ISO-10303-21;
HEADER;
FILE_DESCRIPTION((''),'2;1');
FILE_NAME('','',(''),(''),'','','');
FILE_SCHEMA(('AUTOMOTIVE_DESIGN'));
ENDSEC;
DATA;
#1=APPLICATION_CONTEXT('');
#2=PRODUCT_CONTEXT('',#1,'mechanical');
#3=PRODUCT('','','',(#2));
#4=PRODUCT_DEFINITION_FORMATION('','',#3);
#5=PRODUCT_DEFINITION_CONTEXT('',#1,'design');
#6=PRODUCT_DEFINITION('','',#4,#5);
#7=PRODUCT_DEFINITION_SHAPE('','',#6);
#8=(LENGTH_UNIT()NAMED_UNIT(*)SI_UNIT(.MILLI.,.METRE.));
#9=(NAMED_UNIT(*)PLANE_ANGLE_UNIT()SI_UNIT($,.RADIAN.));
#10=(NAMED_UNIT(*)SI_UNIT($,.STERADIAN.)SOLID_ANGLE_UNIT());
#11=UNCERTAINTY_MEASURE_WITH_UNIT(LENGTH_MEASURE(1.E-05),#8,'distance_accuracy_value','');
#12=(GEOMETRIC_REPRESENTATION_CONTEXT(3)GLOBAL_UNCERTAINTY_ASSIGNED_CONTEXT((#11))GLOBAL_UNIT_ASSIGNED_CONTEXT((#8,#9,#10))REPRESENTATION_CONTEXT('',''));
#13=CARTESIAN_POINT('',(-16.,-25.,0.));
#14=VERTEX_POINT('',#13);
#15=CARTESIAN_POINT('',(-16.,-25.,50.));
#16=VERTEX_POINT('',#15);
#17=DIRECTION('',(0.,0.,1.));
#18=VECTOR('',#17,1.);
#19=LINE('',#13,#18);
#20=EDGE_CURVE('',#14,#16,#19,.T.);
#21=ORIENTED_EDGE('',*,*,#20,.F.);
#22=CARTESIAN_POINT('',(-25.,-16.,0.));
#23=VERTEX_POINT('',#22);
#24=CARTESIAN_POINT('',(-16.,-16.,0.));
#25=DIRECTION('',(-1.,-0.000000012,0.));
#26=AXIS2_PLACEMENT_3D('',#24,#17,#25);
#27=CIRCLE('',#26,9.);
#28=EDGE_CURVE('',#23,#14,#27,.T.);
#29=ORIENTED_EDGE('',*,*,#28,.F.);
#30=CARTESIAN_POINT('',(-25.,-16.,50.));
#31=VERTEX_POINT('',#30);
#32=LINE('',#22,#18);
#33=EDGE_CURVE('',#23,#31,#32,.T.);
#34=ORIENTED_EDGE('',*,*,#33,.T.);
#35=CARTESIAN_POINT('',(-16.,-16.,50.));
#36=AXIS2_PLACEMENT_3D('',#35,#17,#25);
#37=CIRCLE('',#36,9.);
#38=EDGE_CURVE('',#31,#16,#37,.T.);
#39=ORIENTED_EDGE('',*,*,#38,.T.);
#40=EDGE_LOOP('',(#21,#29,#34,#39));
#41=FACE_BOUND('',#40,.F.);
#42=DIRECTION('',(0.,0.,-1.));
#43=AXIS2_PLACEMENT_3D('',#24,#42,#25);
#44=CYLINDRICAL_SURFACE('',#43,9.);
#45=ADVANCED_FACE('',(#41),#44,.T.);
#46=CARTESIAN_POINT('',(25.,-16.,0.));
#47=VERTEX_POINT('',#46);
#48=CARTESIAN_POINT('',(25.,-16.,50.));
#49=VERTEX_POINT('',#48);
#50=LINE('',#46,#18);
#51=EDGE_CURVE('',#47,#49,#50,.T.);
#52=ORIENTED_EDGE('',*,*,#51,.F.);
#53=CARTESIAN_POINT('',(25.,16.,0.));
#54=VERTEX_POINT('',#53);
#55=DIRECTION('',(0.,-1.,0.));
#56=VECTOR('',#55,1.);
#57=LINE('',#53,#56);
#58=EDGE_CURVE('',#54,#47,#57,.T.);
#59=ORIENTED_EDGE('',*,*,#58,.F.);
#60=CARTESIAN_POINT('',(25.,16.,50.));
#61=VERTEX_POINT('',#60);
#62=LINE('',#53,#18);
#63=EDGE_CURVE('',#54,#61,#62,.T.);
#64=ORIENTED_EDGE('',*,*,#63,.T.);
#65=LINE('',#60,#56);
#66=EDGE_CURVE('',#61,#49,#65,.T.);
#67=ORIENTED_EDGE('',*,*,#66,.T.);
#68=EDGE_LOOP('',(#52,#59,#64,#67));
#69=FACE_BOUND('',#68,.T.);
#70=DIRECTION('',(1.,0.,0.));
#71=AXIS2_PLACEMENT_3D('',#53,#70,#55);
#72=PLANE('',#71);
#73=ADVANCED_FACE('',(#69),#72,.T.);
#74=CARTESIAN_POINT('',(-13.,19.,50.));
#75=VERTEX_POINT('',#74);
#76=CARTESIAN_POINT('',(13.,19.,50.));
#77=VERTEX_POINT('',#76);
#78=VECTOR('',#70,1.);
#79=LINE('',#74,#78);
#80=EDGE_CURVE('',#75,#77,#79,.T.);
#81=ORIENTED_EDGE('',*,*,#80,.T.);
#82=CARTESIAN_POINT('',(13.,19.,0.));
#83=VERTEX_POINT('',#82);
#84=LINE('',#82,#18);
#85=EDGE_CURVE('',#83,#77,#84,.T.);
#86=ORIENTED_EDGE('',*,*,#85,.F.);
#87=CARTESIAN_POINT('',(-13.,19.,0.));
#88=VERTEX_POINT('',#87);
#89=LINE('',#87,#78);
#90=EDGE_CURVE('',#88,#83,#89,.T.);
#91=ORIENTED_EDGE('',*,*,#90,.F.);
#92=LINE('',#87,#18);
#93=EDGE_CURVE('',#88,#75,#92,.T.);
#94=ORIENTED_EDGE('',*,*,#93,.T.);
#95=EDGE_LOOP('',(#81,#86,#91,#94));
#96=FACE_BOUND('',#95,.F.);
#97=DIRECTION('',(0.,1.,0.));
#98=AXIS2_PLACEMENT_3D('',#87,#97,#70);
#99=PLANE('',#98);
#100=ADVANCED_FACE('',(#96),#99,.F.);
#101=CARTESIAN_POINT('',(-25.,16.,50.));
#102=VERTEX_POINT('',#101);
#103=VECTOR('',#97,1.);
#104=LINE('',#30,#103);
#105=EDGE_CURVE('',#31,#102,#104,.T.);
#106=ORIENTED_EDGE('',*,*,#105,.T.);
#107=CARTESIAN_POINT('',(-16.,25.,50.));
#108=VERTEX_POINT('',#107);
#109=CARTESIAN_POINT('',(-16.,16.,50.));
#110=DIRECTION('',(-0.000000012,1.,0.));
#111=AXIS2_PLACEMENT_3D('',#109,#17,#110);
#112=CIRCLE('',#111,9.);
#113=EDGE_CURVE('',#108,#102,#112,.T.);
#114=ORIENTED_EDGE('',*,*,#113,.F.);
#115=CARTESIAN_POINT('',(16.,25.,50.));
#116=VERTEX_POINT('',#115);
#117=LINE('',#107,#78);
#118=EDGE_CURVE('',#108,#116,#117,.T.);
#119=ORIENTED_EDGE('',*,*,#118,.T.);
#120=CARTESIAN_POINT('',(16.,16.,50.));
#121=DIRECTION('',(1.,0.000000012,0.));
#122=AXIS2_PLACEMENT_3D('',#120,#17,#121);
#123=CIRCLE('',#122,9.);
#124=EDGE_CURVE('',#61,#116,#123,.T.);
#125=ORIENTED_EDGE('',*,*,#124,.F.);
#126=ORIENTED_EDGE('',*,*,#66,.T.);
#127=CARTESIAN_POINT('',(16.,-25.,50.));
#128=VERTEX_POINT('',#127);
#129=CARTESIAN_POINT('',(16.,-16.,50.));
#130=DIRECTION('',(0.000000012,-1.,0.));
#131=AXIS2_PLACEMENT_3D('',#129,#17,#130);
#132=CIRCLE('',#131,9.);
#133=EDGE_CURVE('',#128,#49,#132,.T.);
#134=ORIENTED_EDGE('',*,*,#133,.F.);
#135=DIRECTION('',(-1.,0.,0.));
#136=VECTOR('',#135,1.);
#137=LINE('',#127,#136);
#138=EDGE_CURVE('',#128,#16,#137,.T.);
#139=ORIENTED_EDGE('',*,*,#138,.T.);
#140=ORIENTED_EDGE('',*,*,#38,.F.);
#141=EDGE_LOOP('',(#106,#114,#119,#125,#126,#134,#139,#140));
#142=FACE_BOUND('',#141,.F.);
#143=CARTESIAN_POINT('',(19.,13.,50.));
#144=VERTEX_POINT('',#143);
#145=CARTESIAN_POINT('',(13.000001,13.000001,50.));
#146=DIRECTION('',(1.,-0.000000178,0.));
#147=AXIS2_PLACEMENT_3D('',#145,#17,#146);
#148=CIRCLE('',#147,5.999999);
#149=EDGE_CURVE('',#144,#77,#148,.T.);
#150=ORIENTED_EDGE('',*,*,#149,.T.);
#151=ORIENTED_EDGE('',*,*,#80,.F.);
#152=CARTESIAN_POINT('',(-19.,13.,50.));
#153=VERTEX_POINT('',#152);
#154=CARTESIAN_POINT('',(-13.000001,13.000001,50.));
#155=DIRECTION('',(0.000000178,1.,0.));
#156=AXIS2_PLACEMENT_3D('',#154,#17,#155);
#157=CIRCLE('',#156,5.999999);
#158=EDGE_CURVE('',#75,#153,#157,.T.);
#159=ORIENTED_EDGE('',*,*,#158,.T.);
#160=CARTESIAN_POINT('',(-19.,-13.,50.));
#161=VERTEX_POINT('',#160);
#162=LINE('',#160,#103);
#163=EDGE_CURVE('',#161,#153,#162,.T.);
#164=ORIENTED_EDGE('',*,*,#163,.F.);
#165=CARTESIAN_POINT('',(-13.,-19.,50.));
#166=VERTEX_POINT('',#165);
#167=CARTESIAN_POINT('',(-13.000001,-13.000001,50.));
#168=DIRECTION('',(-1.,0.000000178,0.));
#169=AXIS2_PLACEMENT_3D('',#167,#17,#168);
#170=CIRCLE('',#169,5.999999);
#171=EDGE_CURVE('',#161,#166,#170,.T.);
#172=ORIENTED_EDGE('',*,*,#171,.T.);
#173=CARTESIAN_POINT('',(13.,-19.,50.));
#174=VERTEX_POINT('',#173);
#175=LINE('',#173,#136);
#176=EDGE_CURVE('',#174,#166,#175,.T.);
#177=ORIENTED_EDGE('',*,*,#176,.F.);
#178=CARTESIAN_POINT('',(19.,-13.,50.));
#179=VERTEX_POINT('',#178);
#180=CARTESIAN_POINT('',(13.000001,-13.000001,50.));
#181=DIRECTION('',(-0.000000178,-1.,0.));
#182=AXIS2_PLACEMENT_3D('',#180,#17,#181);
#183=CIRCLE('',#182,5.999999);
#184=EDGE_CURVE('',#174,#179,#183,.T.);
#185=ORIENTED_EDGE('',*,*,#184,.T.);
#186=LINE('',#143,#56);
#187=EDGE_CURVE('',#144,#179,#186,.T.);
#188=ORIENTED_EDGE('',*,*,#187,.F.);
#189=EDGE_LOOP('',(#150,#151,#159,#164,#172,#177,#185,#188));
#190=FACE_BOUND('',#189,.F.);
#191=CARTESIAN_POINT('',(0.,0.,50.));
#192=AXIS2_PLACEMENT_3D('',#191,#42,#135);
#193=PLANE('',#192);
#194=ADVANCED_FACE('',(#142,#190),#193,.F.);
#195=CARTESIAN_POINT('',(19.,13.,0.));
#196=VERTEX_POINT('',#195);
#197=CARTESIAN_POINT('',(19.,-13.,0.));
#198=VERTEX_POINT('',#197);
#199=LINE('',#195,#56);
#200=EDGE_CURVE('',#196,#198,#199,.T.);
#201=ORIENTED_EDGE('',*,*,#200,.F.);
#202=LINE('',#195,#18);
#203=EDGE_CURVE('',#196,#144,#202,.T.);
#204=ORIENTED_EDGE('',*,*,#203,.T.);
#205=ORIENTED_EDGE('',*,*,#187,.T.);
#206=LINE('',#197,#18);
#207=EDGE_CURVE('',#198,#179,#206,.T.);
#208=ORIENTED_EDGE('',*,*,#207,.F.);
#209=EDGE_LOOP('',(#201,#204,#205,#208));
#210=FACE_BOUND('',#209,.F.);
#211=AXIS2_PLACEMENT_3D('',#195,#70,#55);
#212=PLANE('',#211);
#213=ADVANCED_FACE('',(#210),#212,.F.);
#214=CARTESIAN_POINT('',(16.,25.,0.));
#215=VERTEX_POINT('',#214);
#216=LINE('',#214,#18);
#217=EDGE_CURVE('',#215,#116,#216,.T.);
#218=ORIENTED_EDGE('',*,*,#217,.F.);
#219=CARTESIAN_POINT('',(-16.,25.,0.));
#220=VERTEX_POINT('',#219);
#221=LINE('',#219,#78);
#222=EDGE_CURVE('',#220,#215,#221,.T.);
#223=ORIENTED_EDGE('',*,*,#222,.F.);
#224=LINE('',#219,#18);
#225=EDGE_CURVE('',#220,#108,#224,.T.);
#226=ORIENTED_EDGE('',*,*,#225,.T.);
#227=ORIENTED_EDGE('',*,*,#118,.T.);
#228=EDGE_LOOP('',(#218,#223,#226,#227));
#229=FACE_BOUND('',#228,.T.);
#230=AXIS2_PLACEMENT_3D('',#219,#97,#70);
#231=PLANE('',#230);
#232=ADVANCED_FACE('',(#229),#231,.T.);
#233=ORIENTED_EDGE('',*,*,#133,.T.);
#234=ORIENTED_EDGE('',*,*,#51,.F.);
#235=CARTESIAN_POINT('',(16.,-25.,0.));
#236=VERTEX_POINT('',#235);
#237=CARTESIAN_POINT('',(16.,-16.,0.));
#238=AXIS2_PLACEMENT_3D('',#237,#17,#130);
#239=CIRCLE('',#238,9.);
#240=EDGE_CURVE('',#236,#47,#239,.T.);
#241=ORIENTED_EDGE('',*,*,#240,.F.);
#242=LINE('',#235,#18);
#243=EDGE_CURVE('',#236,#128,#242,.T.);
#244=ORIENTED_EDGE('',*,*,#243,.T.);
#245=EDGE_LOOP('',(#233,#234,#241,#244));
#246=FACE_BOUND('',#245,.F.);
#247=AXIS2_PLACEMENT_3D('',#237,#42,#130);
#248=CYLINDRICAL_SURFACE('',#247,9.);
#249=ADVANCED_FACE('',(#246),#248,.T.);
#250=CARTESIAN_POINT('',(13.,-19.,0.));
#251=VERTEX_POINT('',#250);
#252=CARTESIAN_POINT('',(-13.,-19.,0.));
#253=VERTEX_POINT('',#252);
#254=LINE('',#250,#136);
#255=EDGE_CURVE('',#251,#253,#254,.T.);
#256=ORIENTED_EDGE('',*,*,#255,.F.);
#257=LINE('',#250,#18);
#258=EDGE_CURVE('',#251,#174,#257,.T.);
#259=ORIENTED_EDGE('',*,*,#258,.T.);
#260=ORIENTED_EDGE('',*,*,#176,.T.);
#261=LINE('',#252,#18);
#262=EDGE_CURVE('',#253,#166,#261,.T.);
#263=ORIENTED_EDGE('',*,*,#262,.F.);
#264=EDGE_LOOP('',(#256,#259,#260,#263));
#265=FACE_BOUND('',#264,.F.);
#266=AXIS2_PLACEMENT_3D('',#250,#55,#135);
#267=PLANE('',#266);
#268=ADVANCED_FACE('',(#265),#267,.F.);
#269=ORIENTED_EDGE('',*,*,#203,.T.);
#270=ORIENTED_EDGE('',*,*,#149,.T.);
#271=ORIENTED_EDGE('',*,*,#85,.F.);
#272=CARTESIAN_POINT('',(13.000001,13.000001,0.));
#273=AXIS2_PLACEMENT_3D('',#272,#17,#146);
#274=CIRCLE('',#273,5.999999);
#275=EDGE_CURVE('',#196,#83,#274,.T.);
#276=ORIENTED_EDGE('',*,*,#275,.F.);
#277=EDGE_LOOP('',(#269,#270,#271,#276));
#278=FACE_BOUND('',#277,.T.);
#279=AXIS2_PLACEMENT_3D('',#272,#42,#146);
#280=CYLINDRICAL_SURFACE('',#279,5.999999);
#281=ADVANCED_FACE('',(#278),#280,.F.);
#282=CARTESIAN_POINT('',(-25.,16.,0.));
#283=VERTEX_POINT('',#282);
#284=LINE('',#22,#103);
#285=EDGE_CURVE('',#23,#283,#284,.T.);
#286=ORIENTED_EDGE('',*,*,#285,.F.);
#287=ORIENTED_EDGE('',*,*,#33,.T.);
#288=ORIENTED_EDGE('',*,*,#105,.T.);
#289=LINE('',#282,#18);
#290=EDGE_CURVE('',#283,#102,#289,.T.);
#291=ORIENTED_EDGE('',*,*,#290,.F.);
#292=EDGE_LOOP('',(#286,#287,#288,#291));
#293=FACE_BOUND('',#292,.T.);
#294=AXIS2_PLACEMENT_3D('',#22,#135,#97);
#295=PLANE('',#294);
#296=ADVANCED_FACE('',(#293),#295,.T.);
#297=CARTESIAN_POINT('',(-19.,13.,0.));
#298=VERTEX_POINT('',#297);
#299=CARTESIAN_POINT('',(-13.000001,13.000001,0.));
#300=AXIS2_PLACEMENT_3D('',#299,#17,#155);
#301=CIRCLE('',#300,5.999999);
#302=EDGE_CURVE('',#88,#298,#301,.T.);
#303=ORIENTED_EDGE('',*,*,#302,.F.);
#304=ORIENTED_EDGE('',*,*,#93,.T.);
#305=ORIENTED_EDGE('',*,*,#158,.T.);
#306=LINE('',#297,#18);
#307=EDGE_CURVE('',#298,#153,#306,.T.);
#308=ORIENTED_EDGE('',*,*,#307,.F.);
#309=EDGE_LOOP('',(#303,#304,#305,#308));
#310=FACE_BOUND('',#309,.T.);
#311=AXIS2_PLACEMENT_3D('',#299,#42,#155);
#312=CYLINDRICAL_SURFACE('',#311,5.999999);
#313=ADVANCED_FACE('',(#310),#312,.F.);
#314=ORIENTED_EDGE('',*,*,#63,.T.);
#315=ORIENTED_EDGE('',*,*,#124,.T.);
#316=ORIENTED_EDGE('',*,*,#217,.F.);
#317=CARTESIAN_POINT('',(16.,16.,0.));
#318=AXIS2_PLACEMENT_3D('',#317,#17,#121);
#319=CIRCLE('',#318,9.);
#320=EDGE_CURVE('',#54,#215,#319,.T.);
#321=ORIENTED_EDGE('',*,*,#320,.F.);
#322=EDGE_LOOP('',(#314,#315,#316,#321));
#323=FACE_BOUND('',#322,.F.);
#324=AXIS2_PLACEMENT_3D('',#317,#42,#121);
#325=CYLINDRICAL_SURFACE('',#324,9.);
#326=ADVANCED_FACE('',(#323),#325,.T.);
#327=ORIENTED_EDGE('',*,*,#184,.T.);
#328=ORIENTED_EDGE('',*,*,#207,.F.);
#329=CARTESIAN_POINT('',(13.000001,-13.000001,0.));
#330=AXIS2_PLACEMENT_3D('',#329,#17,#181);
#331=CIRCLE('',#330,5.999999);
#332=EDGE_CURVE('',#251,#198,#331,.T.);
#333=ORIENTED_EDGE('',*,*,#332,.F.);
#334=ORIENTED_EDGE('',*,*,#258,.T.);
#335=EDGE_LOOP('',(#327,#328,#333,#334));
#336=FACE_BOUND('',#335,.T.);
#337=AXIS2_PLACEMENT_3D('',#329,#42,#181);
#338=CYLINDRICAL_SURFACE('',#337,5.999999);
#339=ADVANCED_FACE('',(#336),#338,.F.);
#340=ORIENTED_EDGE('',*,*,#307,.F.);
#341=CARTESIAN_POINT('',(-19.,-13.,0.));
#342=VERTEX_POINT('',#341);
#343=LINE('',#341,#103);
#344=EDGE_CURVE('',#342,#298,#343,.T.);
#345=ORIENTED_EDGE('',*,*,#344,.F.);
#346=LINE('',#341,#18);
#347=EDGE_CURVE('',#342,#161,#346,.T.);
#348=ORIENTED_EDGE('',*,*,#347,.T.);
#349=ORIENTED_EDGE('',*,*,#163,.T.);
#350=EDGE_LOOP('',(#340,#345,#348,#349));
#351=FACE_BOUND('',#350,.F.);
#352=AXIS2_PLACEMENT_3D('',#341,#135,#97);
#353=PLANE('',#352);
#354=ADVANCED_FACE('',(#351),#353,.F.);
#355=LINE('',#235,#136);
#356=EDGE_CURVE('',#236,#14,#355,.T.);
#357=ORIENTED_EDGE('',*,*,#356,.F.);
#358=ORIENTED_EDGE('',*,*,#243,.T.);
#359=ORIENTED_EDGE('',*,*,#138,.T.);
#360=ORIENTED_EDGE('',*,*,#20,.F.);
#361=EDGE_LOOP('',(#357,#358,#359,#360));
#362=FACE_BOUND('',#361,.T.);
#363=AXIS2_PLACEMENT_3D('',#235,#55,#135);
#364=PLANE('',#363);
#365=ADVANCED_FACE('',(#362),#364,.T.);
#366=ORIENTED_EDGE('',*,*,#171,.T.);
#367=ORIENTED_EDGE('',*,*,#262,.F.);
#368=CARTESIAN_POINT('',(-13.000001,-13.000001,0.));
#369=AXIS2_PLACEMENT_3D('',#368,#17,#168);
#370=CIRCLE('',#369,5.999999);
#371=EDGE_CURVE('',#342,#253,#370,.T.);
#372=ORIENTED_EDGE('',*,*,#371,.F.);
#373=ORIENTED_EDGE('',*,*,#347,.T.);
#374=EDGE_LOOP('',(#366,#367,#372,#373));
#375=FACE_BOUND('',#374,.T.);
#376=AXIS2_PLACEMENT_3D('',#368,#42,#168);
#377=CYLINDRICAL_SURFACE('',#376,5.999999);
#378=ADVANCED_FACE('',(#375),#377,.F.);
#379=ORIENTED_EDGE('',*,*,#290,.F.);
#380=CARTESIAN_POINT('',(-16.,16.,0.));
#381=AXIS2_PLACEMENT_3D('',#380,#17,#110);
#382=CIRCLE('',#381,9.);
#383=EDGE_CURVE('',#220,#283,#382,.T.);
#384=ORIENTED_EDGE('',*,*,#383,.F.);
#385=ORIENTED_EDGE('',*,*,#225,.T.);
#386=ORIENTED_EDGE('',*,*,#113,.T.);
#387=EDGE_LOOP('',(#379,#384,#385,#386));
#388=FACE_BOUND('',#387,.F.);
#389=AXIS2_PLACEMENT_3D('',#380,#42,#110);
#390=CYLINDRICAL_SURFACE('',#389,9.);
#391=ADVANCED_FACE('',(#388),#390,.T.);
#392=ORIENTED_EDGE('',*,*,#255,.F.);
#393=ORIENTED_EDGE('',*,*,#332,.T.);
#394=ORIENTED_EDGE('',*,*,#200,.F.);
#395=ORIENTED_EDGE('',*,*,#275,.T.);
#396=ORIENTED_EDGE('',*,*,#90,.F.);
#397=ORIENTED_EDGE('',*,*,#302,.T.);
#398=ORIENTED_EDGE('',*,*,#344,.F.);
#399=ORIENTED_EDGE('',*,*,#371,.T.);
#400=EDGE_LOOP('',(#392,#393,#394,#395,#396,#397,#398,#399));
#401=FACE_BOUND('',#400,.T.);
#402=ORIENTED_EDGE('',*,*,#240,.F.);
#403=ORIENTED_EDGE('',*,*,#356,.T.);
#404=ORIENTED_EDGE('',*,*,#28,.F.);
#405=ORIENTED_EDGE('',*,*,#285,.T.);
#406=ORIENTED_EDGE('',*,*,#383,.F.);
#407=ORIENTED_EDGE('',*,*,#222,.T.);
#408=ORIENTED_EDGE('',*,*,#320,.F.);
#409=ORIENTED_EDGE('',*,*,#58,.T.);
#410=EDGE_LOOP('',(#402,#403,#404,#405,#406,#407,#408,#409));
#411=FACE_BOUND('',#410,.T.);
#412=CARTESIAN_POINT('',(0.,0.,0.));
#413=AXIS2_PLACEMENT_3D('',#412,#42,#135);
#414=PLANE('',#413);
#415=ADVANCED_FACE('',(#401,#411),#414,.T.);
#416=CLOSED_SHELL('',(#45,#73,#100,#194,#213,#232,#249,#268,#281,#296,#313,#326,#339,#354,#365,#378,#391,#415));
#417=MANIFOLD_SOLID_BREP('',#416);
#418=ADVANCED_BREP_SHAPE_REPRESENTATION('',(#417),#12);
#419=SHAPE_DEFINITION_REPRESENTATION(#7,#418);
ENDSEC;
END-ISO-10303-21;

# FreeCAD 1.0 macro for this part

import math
import FreeCAD as App
import Part
import Sketcher
from FreeCAD import Vector

doc = App.newDocument("Part")
body = doc.addObject("PartDesign::Body", "Body")

sketch1 = body.newObject("Sketcher::SketchObject", "Sketch")
sketch1.AttachmentSupport = (doc.getObject("XY_Plane"), [""])
sketch1.MapMode = "FlatFace"
sketch1.addGeometry(Part.LineSegment(Vector(16, 25, 0), Vector(-16, 25, 0)), False)
sketch1.addGeometry(Part.ArcOfCircle(Part.Circle(Vector(-16, 16, 0), Vector(0, 0, 1), 9), math.radians(90.000001), math.radians(179.999999)), False)
sketch1.addGeometry(Part.LineSegment(Vector(-25, 16, 0), Vector(-25, -16, 0)), False)
sketch1.addGeometry(Part.ArcOfCircle(Part.Circle(Vector(-16, -16, 0), Vector(0, 0, 1), 9), math.radians(-179.999999), math.radians(-90.000001)), False)
sketch1.addGeometry(Part.LineSegment(Vector(-16, -25, 0), Vector(16, -25, 0)), False)
sketch1.addGeometry(Part.ArcOfCircle(Part.Circle(Vector(16, -16, 0), Vector(0, 0, 1), 9), math.radians(-89.999999), math.radians(-0.000001)), False)
sketch1.addGeometry(Part.LineSegment(Vector(25, -16, 0), Vector(25, 16, 0)), False)
sketch1.addGeometry(Part.ArcOfCircle(Part.Circle(Vector(16, 16, 0), Vector(0, 0, 1), 9), math.radians(0.000001), math.radians(89.999999)), False)
sketch1.addGeometry(Part.LineSegment(Vector(-13, 19, 0), Vector(13, 19, 0)), False)
sketch1.addGeometry(Part.ArcOfCircle(Part.Circle(Vector(13.000001, 13.000001, 0), Vector(0, 0, 1), 5.999999), math.radians(-0.00001), math.radians(90.00001)), False)
sketch1.addGeometry(Part.LineSegment(Vector(19, 13, 0), Vector(19, -13, 0)), False)
sketch1.addGeometry(Part.ArcOfCircle(Part.Circle(Vector(13.000001, -13.000001, 0), Vector(0, 0, 1), 5.999999), math.radians(-90.00001), math.radians(0.00001)), False)
sketch1.addGeometry(Part.LineSegment(Vector(13, -19, 0), Vector(-13, -19, 0)), False)
sketch1.addGeometry(Part.ArcOfCircle(Part.Circle(Vector(-13.000001, -13.000001, 0), Vector(0, 0, 1), 5.999999), math.radians(179.99999), math.radians(270.00001)), False)
sketch1.addGeometry(Part.LineSegment(Vector(-19, -13, 0), Vector(-19, 13, 0)), False)
sketch1.addGeometry(Part.ArcOfCircle(Part.Circle(Vector(-13.000001, 13.000001, 0), Vector(0, 0, 1), 5.999999), math.radians(89.99999), math.radians(180.00001)), False)
sketch1.addConstraint(Sketcher.Constraint("Tangent", 0, 2, 1, 1))
sketch1.addConstraint(Sketcher.Constraint("Tangent", 1, 2, 2, 1))
sketch1.addConstraint(Sketcher.Constraint("Tangent", 2, 2, 3, 1))
sketch1.addConstraint(Sketcher.Constraint("Tangent", 3, 2, 4, 1))
sketch1.addConstraint(Sketcher.Constraint("Tangent", 4, 2, 5, 1))
sketch1.addConstraint(Sketcher.Constraint("Tangent", 5, 2, 6, 1))
sketch1.addConstraint(Sketcher.Constraint("Tangent", 6, 2, 7, 1))
sketch1.addConstraint(Sketcher.Constraint("Tangent", 7, 2, 0, 1))
sketch1.addConstraint(Sketcher.Constraint("Tangent", 8, 2, 9, 2))
sketch1.addConstraint(Sketcher.Constraint("Tangent", 9, 1, 10, 1))
sketch1.addConstraint(Sketcher.Constraint("Tangent", 10, 2, 11, 2))
sketch1.addConstraint(Sketcher.Constraint("Tangent", 11, 1, 12, 1))
sketch1.addConstraint(Sketcher.Constraint("Tangent", 12, 2, 13, 2))
sketch1.addConstraint(Sketcher.Constraint("Tangent", 13, 1, 14, 1))
sketch1.addConstraint(Sketcher.Constraint("Tangent", 14, 2, 15, 2))
sketch1.addConstraint(Sketcher.Constraint("Tangent", 15, 1, 8, 1))
sketch1.addConstraint(Sketcher.Constraint("Horizontal", 0))
sketch1.addConstraint(Sketcher.Constraint("Vertical", 2))
sketch1.addConstraint(Sketcher.Constraint("Horizontal", 4))
sketch1.addConstraint(Sketcher.Constraint("Vertical", 6))
sketch1.addConstraint(Sketcher.Constraint("Horizontal", 8))
sketch1.addConstraint(Sketcher.Constraint("Vertical", 10))
sketch1.addConstraint(Sketcher.Constraint("Horizontal", 12))
sketch1.addConstraint(Sketcher.Constraint("Vertical", 14))
sketch1.addConstraint(Sketcher.Constraint("Equal", 1, 3))
sketch1.addConstraint(Sketcher.Constraint("Equal", 3, 5))
sketch1.addConstraint(Sketcher.Constraint("Equal", 5, 7))
sketch1.addConstraint(Sketcher.Constraint("Equal", 9, 11))
sketch1.addConstraint(Sketcher.Constraint("Equal", 11, 13))
sketch1.addConstraint(Sketcher.Constraint("Equal", 13, 15))
sketch1.addConstraint(Sketcher.Constraint("Symmetric", 1, 3, 5, 3, -1, 1))
sketch1.addConstraint(Sketcher.Constraint("Symmetric", 9, 3, 13, 3, -1, 1))
sketch1.addConstraint(Sketcher.Constraint("Equal", 4, 2))
sketch1.addConstraint(Sketcher.Constraint("Equal", 12, 10))
sketch1.addConstraint(Sketcher.Constraint("Radius", 1, 9.0))
sketch1.addConstraint(Sketcher.Constraint("Radius", 9, 5.999999))
sketch1.addConstraint(Sketcher.Constraint("DistanceX", 0, 2, 0, 1, 32.0))
sketch1.addConstraint(Sketcher.Constraint("DistanceX", 8, 1, 8, 2, 26.0))
pad1 = body.newObject("PartDesign::Pad", "Pad")
pad1.Profile = sketch1
pad1.Length = 50

doc.recompute()
